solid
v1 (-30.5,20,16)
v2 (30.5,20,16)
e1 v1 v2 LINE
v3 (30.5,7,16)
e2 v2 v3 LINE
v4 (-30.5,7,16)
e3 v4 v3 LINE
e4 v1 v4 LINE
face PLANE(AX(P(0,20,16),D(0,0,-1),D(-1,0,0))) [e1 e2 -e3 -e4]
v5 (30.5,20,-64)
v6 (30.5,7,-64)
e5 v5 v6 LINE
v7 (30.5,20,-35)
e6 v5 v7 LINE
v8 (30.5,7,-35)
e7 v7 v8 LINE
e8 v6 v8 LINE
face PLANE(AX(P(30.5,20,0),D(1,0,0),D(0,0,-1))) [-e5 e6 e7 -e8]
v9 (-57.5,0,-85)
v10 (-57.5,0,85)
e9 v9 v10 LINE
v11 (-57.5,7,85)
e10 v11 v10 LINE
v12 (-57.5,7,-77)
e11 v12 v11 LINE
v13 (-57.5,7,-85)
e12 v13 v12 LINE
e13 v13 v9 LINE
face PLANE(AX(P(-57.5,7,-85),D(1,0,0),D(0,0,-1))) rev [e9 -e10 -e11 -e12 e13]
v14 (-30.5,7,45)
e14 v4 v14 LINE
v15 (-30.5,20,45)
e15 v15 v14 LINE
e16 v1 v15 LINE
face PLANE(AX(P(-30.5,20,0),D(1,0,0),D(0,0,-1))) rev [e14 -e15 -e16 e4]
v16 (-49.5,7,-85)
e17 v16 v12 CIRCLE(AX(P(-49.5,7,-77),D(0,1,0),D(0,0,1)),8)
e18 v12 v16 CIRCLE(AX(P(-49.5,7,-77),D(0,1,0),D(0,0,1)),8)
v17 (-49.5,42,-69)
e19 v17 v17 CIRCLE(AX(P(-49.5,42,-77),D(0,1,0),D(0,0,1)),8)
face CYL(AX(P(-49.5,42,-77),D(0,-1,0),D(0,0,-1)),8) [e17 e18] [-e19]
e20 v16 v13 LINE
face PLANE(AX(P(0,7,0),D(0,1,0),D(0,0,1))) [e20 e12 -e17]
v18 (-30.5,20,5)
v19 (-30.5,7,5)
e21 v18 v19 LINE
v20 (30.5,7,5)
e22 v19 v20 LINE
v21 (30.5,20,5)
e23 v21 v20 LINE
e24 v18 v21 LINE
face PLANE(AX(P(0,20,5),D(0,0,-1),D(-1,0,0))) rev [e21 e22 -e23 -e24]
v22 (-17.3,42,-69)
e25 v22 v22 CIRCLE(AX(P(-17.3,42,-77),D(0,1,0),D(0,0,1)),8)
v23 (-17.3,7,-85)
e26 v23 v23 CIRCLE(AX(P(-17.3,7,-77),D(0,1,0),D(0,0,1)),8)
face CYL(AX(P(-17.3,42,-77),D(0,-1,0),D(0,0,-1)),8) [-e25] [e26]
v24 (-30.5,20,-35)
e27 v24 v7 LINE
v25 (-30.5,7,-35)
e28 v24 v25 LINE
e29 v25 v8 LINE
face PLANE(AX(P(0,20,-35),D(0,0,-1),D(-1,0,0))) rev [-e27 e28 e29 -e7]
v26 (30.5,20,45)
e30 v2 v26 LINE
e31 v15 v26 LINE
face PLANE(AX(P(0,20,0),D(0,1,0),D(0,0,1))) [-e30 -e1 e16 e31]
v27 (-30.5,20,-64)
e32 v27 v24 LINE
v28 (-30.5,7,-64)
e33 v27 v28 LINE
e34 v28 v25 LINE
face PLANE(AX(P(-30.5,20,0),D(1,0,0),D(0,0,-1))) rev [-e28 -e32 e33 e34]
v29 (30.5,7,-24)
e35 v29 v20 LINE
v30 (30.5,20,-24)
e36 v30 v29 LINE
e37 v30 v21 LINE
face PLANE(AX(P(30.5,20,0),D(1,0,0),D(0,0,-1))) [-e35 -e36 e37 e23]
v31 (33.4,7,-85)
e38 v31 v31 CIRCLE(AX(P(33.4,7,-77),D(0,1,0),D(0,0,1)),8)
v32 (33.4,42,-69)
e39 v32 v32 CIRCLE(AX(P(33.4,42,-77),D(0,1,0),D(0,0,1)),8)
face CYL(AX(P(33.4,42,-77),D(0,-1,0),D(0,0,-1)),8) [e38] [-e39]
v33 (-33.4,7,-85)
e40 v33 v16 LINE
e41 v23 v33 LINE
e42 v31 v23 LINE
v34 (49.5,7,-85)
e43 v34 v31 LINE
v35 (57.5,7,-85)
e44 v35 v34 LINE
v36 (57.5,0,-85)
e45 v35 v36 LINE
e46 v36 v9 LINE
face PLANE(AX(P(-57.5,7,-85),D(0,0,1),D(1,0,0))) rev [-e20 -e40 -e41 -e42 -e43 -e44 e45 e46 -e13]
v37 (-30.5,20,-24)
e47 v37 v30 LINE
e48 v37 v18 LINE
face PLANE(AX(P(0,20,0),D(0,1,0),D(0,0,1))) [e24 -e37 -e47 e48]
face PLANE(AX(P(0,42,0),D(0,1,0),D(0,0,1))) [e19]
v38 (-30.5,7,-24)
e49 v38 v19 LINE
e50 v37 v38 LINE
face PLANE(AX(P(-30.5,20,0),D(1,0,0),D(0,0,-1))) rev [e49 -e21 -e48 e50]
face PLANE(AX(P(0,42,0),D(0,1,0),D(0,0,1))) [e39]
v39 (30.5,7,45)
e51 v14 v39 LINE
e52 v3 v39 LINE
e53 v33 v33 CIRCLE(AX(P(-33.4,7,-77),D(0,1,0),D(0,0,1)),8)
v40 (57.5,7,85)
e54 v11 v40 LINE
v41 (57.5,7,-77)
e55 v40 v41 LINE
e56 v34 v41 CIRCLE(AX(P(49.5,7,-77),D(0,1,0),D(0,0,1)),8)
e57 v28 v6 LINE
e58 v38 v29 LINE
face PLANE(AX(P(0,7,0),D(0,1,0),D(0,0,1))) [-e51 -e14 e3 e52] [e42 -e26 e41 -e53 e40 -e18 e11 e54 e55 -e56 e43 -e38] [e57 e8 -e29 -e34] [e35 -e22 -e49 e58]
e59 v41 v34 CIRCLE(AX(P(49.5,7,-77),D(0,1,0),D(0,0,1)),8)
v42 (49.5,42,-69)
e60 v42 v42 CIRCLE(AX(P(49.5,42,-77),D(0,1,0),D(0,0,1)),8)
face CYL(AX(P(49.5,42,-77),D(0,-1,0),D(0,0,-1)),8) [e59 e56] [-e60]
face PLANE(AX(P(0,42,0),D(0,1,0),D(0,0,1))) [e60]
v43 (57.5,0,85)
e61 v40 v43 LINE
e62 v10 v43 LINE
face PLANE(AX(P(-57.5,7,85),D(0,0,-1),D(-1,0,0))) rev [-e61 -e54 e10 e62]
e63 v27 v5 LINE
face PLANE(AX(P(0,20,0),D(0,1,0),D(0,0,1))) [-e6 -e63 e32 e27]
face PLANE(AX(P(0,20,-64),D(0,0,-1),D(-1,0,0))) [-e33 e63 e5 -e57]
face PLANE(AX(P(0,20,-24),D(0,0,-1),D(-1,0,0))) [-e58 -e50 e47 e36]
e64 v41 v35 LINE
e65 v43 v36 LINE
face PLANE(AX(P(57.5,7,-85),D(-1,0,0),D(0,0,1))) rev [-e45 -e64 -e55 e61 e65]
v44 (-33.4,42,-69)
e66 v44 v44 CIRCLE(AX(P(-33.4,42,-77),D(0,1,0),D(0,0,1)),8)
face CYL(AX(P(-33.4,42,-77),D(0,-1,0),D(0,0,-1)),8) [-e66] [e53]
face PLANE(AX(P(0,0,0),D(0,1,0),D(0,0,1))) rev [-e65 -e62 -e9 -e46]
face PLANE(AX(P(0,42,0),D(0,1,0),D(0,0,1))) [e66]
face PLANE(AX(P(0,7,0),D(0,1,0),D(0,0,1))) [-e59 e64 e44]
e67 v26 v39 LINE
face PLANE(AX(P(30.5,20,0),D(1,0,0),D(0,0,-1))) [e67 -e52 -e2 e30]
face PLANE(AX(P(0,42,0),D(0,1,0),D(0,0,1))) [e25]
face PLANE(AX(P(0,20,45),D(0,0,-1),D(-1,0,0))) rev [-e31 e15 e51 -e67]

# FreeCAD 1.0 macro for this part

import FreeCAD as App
import Part
import Sketcher
Q = App.Units.Quantity


def add_polygon(sketch, points):
    """Adds a closed chain of lines whose ends are joined by coincident constraints."""
    first, n = sketch.GeometryCount, len(points)
    for a, b in zip(points, points[1:] + points[:1]):
        sketch.addGeometry(Part.LineSegment(App.Vector(*a, 0), App.Vector(*b, 0)), False)
    for i in range(n):
        sketch.addConstraint(Sketcher.Constraint("Coincident", first + i, 2, first + (i + 1) % n, 1))

doc = App.newDocument("Part")
body = doc.addObject("PartDesign::Body", "Body")

# Sketch on XZ plane
sketch1 = body.newObject("Sketcher::SketchObject", "Sketch")
sketch1.AttachmentSupport = (doc.getObject("XZ_Plane"), [""])
sketch1.MapMode = "FlatFace"
add_polygon(sketch1, [(-58, -85), (-58, 85), (58, 85), (58, -85)])  # lines 0-3
sketch1.addConstraint([
    Sketcher.Constraint("Vertical", 0),
    Sketcher.Constraint("Horizontal", 1),
    Sketcher.Constraint("Vertical", 2),
    Sketcher.Constraint("Horizontal", 3),
    Sketcher.Constraint("Symmetric", 0, 2, 2, 2, -1, 1),
    Sketcher.Constraint("DistanceX", 1, 1, 1, 2, Q("115 mm")),
    Sketcher.Constraint("DistanceY", 0, 1, 0, 2, Q("170 mm")),
])
pad1 = body.newObject("PartDesign::Pad", "Pad")
pad1.Profile = sketch1
pad1.Length = 7
pad1.Reversed = True

# Sketch on XZ plane
sketch2 = body.newObject("Sketcher::SketchObject", "Sketch001")
sketch2.AttachmentSupport = (doc.getObject("XZ_Plane"), [""])
sketch2.MapMode = "FlatFace"
sketch2.AttachmentOffset = App.Placement(App.Vector(0, 0, -7), App.Rotation())
add_polygon(sketch2, [(-30, -64), (-30, -35), (30, -35), (30, -64)])  # lines 0-3
add_polygon(sketch2, [(30, 5), (30, -24), (-30, -24), (-30, 5)])  # lines 4-7
add_polygon(sketch2, [(-30, 16), (-30, 45), (30, 45), (30, 16)])  # lines 8-11
sketch2.addConstraint([
    Sketcher.Constraint("Vertical", 0),
    Sketcher.Constraint("Horizontal", 1),
    Sketcher.Constraint("Vertical", 2),
    Sketcher.Constraint("Horizontal", 3),
    Sketcher.Constraint("Vertical", 4),
    Sketcher.Constraint("Horizontal", 5),
    Sketcher.Constraint("Vertical", 6),
    Sketcher.Constraint("Horizontal", 7),
    Sketcher.Constraint("Vertical", 8),
    Sketcher.Constraint("Horizontal", 9),
    Sketcher.Constraint("Vertical", 10),
    Sketcher.Constraint("Horizontal", 11),
    Sketcher.Constraint("Vertical", 2, 2, 4, 2),
    Sketcher.Constraint("Vertical", 3, 2, 5, 2),
    Sketcher.Constraint("Vertical", 6, 2, 8, 2),
    Sketcher.Constraint("Vertical", 7, 2, 9, 2),
    Sketcher.Constraint("Equal", 2, 4),
    Sketcher.Constraint("Equal", 6, 8),
    Sketcher.Constraint("DistanceX", 1, 1, 1, 2, Q("61 mm")),
    Sketcher.Constraint("DistanceY", 0, 1, 0, 2, Q("29 mm")),
    Sketcher.Constraint("DistanceY", 0, 2, -1, 1, Q("35 mm")),
    Sketcher.Constraint("DistanceY", 4, 2, -1, 1, Q("24 mm")),
    Sketcher.Constraint("DistanceY", -1, 1, 8, 2, Q("45 mm")),
    Sketcher.Constraint("DistanceX", 0, 2, -1, 1, Q("30.5 mm")),
])
pad2 = body.newObject("PartDesign::Pad", "Pad001")
pad2.Profile = sketch2
pad2.Length = 13
pad2.Reversed = True

# Sketch on XZ plane
sketch3 = body.newObject("Sketcher::SketchObject", "Sketch002")
sketch3.AttachmentSupport = (doc.getObject("XZ_Plane"), [""])
sketch3.MapMode = "FlatFace"
sketch3.AttachmentOffset = App.Placement(App.Vector(0, 0, -7), App.Rotation())
sketch3.addGeometry([
    Part.Circle(App.Vector(-50, -77, 0), App.Vector(0, 0, 1), 8),  # 0
    Part.Circle(App.Vector(-33, -77, 0), App.Vector(0, 0, 1), 8),  # 1
    Part.Circle(App.Vector(-17, -77, 0), App.Vector(0, 0, 1), 8),  # 2
    Part.Circle(App.Vector(33, -77, 0), App.Vector(0, 0, 1), 8),  # 3
    Part.Circle(App.Vector(50, -77, 0), App.Vector(0, 0, 1), 8),  # 4
], False)
sketch3.addConstraint([
    Sketcher.Constraint("Equal", 0, 1),
    Sketcher.Constraint("Equal", 1, 2),
    Sketcher.Constraint("Equal", 2, 3),
    Sketcher.Constraint("Equal", 3, 4),
    Sketcher.Constraint("Symmetric", 1, 3, 3, 3, -2),
    Sketcher.Constraint("Symmetric", 0, 3, 4, 3, -2),
    Sketcher.Constraint("Horizontal", 0, 3, 1, 3),
    Sketcher.Constraint("Horizontal", 1, 3, 2, 3),
    Sketcher.Constraint("Diameter", 0, Q("16 mm")),
    Sketcher.Constraint("DistanceY", 0, 3, -1, 1, Q("77 mm")),
    Sketcher.Constraint("DistanceX", 0, 3, 4, 3, Q("99 mm")),
    Sketcher.Constraint("DistanceX", 1, 3, -1, 1, Q("33.4 mm")),
    Sketcher.Constraint("DistanceX", 2, 3, -1, 1, Q("17.3 mm")),
])
pad3 = body.newObject("PartDesign::Pad", "Pad002")
pad3.Profile = sketch3
pad3.Length = 35
pad3.Reversed = True

doc.recompute()
